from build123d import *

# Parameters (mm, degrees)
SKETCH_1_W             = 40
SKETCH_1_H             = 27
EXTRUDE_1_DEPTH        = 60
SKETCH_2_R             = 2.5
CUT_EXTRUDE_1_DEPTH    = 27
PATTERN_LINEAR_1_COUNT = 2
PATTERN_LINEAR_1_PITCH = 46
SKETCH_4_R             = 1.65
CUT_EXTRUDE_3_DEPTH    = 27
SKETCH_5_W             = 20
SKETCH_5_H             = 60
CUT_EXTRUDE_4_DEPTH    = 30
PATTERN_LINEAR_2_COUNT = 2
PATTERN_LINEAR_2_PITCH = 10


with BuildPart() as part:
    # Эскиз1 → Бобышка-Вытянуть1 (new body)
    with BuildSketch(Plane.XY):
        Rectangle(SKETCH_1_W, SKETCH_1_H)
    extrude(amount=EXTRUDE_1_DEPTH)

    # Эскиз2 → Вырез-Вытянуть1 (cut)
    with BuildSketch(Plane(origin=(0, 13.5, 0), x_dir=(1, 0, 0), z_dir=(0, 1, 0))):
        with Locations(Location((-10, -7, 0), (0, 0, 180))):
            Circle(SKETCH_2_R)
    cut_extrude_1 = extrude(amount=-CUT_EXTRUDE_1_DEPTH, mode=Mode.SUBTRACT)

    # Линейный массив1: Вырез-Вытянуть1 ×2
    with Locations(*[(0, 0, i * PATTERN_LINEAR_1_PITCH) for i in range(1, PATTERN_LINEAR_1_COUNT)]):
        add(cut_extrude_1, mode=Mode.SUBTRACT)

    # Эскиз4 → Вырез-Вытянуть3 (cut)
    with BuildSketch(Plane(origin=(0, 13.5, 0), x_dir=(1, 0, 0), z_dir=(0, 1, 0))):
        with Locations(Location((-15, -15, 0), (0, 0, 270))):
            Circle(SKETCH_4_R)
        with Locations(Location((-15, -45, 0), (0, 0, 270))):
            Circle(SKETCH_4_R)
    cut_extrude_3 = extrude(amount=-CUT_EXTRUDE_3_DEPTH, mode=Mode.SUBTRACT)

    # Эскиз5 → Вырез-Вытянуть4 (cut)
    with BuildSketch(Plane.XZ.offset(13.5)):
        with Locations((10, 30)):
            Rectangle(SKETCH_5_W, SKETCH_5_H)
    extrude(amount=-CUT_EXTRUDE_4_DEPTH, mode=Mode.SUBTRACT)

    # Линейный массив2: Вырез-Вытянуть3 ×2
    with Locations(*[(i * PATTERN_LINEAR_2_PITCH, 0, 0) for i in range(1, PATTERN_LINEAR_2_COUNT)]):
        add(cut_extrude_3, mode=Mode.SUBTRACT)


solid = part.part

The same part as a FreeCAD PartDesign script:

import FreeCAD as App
import Part
import Sketcher
from FreeCAD import Vector
Q = App.Units.Quantity

doc = App.newDocument("Part")
body = doc.addObject("PartDesign::Body", "Body")

sketch1 = body.newObject("Sketcher::SketchObject", "Sketch")
sketch1.AttachmentSupport = (doc.getObject("XY_Plane"), [""])
sketch1.MapMode = "FlatFace"
sketch1.addGeometry([
    Part.LineSegment(Vector(-20, 14, 0), Vector(-20, -14, 0)),
    Part.LineSegment(Vector(-20, -14, 0), Vector(20, -14, 0)),
    Part.LineSegment(Vector(20, -14, 0), Vector(20, 14, 0)),
    Part.LineSegment(Vector(20, 14, 0), Vector(-20, 14, 0)),
], False)
sketch1.addConstraint([
    Sketcher.Constraint("Coincident", 0, 2, 1, 1),
    Sketcher.Constraint("Coincident", 1, 2, 2, 1),
    Sketcher.Constraint("Coincident", 2, 2, 3, 1),
    Sketcher.Constraint("Coincident", 3, 2, 0, 1),
    Sketcher.Constraint("Vertical", 0),
    Sketcher.Constraint("Horizontal", 1),
    Sketcher.Constraint("Vertical", 2),
    Sketcher.Constraint("Horizontal", 3),
    Sketcher.Constraint("Symmetric", 0, 2, 2, 2, -1, 1),
    Sketcher.Constraint("DistanceX", 1, 1, 1, 2, Q("40 mm")),
    Sketcher.Constraint("DistanceY", 0, 2, 0, 1, Q("27 mm")),
])
pad1 = body.newObject("PartDesign::Pad", "Pad")
pad1.Profile = sketch1
pad1.Length = 60

sketch2 = body.newObject("Sketcher::SketchObject", "Sketch001")
sketch2.AttachmentSupport = (doc.getObject("XZ_Plane"), [""])
sketch2.MapMode = "FlatFace"
sketch2.AttachmentOffset = App.Placement(Vector(0, 0, -13.5), App.Rotation())
sketch2.addGeometry(Part.Circle(Vector(-10, 7, 0), Vector(0, 0, 1), 2.5), False)
sketch2.addConstraint([
    Sketcher.Constraint("Diameter", 0, Q("5 mm")),
    Sketcher.Constraint("DistanceX", 0, 3, -1, 1, Q("10 mm")),
    Sketcher.Constraint("DistanceY", -1, 1, 0, 3, Q("7 mm")),
])
pocket1 = body.newObject("PartDesign::Pocket", "Pocket")
pocket1.Profile = sketch2
pocket1.Length = 27
pocket1.Reversed = True
doc.recompute()

linearpattern = body.newObject("PartDesign::LinearPattern", "LinearPattern")
linearpattern.Originals = [pocket1]
linearpattern.Direction = (doc.getObject("Z_Axis"), [""])
linearpattern.Mode = "offset"
linearpattern.Offset = 46
linearpattern.Occurrences = 2
body.Tip = linearpattern

sketch3 = body.newObject("Sketcher::SketchObject", "Sketch002")
sketch3.AttachmentSupport = (doc.getObject("XZ_Plane"), [""])
sketch3.MapMode = "FlatFace"
sketch3.AttachmentOffset = App.Placement(Vector(0, 0, -13.5), App.Rotation())
sketch3.addGeometry([
    Part.Circle(Vector(-15, 15, 0), Vector(0, 0, 1), 1.6),
    Part.Circle(Vector(-15, 45, 0), Vector(0, 0, 1), 1.6),
], False)
sketch3.addConstraint([
    Sketcher.Constraint("Equal", 0, 1),
    Sketcher.Constraint("Vertical", 0, 3, 1, 3),
    Sketcher.Constraint("Diameter", 0, Q("3.3 mm")),
    Sketcher.Constraint("DistanceX", 0, 3, -1, 1, Q("15 mm")),
    Sketcher.Constraint("DistanceY", -1, 1, 0, 3, Q("15 mm")),
    Sketcher.Constraint("DistanceY", -1, 1, 1, 3, Q("45 mm")),
])
pocket2 = body.newObject("PartDesign::Pocket", "Pocket001")
pocket2.Profile = sketch3
pocket2.Length = 27
pocket2.Reversed = True

sketch4 = body.newObject("Sketcher::SketchObject", "Sketch003")
sketch4.AttachmentSupport = (doc.getObject("XZ_Plane"), [""])
sketch4.MapMode = "FlatFace"
sketch4.AttachmentOffset = App.Placement(Vector(0, 0, 13.5), App.Rotation())
sketch4.addGeometry([
    Part.LineSegment(Vector(0, 60, 0), Vector(0, 0, 0)),
    Part.LineSegment(Vector(0, 0, 0), Vector(20, 0, 0)),
    Part.LineSegment(Vector(20, 0, 0), Vector(20, 60, 0)),
    Part.LineSegment(Vector(20, 60, 0), Vector(0, 60, 0)),
], False)
sketch4.addConstraint([
    Sketcher.Constraint("Coincident", 0, 2, 1, 1),
    Sketcher.Constraint("Coincident", 1, 2, 2, 1),
    Sketcher.Constraint("Coincident", 2, 2, 3, 1),
    Sketcher.Constraint("Coincident", 3, 2, 0, 1),
    Sketcher.Constraint("Vertical", 0),
    Sketcher.Constraint("Horizontal", 1),
    Sketcher.Constraint("Vertical", 2),
    Sketcher.Constraint("Horizontal", 3),
    Sketcher.Constraint("Coincident", 0, 2, -1, 1),
    Sketcher.Constraint("DistanceX", 1, 1, 1, 2, Q("20 mm")),
    Sketcher.Constraint("DistanceY", 0, 2, 0, 1, Q("60 mm")),
])
pocket3 = body.newObject("PartDesign::Pocket", "Pocket002")
pocket3.Profile = sketch4
pocket3.Length = 30
doc.recompute()

linearpattern2 = body.newObject("PartDesign::LinearPattern", "LinearPattern001")
linearpattern2.Originals = [pocket2]
linearpattern2.Direction = (doc.getObject("X_Axis"), [""])
linearpattern2.Mode = "offset"
linearpattern2.Offset = 10
linearpattern2.Occurrences = 2
body.Tip = linearpattern2

doc.recompute()
